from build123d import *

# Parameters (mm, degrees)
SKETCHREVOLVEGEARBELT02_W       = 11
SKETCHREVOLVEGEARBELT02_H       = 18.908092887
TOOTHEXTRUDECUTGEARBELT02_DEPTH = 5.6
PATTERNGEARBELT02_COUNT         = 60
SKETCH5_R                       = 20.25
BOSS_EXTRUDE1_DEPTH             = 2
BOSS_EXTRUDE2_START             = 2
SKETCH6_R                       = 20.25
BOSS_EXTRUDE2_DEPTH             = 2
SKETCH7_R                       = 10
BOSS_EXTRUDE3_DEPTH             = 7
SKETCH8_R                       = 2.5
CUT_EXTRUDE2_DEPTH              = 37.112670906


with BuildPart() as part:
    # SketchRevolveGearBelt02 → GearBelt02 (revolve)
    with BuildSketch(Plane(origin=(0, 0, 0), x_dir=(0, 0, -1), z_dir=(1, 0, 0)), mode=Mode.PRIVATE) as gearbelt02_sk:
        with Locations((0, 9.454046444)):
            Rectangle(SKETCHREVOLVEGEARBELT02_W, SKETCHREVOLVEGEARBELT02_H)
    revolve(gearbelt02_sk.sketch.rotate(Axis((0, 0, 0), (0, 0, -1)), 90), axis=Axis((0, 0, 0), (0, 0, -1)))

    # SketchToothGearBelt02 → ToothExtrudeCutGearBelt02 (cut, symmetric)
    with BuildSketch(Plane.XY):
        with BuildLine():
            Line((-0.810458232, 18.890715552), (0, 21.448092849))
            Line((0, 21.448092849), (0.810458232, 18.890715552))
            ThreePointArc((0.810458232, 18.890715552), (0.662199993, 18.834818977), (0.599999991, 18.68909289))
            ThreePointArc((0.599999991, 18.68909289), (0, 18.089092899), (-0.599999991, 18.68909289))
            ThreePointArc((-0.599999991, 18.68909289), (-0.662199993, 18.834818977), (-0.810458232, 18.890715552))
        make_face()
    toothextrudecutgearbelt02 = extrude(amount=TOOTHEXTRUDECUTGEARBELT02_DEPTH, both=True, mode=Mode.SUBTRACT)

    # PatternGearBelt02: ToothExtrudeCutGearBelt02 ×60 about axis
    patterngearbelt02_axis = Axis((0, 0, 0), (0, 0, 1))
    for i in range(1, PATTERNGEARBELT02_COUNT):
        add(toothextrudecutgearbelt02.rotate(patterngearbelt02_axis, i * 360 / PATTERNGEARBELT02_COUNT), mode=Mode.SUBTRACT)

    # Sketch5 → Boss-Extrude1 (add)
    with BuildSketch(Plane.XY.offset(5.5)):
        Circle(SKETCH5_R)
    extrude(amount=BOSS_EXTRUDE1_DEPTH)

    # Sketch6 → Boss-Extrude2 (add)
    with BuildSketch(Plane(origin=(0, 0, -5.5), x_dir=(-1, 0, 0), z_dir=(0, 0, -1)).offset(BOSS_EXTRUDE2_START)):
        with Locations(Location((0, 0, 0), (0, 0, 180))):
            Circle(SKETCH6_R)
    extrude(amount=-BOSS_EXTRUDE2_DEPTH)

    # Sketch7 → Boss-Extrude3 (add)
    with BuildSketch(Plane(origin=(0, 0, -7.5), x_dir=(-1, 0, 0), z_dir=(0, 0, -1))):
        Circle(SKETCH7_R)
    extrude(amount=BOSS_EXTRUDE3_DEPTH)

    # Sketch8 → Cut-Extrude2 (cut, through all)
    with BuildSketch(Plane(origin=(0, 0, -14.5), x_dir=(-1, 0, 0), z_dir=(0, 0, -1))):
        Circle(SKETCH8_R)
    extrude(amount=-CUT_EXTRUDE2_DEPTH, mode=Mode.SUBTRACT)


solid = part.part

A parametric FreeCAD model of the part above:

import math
import FreeCAD as App
import Part
import Sketcher
from FreeCAD import Vector


def add_polygon(sketch, points):
    """Adds a closed chain of lines whose ends are joined by coincident constraints."""
    first, n = sketch.GeometryCount, len(points)
    for a, b in zip(points, points[1:] + points[:1]):
        sketch.addGeometry(Part.LineSegment(App.Vector(*a, 0), App.Vector(*b, 0)), False)
    for i in range(n):
        sketch.addConstraint(Sketcher.Constraint("Coincident", first + i, 2, first + (i + 1) % n, 1))

doc = App.newDocument("Part")
body = doc.addObject("PartDesign::Body", "Body")

# Sketch on YZ plane
sketch1 = body.newObject("Sketcher::SketchObject", "Sketch")
sketch1.AttachmentSupport = (doc.getObject("YZ_Plane"), [""])
sketch1.MapMode = "FlatFace"
add_polygon(sketch1, [(19, 6), (0, 6), (0, -6), (19, -6)])  # lines 0-3
sketch1.addConstraint([
    Sketcher.Constraint("Horizontal", 0),
    Sketcher.Constraint("Vertical", 1),
    Sketcher.Constraint("Horizontal", 2),
    Sketcher.Constraint("Vertical", 3),
    Sketcher.Constraint("Symmetric", 0, 2, 1, 2, -1, 1),
    Sketcher.Constraint("DistanceY", 1, 2, 1, 1, 11.0),
    Sketcher.Constraint("DistanceX", 0, 2, 0, 1, 18.908093),
])
revolution = body.newObject("PartDesign::Revolution", "Revolution")
revolution.Profile = sketch1
revolution.ReferenceAxis = (sketch1, ["V_Axis"])
revolution.Angle = 360

# Sketch on XY plane
sketch2 = body.newObject("Sketcher::SketchObject", "Sketch001")
sketch2.AttachmentSupport = (doc.getObject("XY_Plane"), [""])
sketch2.MapMode = "FlatFace"
sketch2.addGeometry([
    Part.LineSegment(Vector(0, 21.45, 0), Vector(-0.81, 18.89, 0)),  # 0
    Part.ArcOfCircle(Part.Circle(Vector(-0.8, 18.69, 0), Vector(0, 0, 1), 0.2), math.radians(0), math.radians(92)),  # 1
    Part.ArcOfCircle(Part.Circle(Vector(0, 18.69, 0), Vector(0, 0, 1), 0.6), math.radians(180), math.radians(360)),  # 2
    Part.ArcOfCircle(Part.Circle(Vector(0.8, 18.69, 0), Vector(0, 0, 1), 0.2), math.radians(88), math.radians(180)),  # 3
    Part.LineSegment(Vector(0.81, 18.89, 0), Vector(0, 21.45, 0)),  # 4
], False)
sketch2.addConstraint([
    Sketcher.Constraint("Coincident", 0, 2, 1, 2),
    Sketcher.Constraint("Tangent", 1, 1, 2, 1),
    Sketcher.Constraint("Tangent", 2, 2, 3, 2),
    Sketcher.Constraint("Coincident", 3, 1, 4, 1),
    Sketcher.Constraint("Coincident", 4, 2, 0, 1),
    Sketcher.Constraint("Equal", 1, 3),
    Sketcher.Constraint("Symmetric", 1, 3, 3, 3, -2),
    Sketcher.Constraint("PointOnObject", 4, 2, -2),
    Sketcher.Constraint("Horizontal", 1, 3, 2, 3),
    Sketcher.Constraint("Horizontal", 0, 2, 3, 1),
    Sketcher.Constraint("Radius", 2, 0.6),
    Sketcher.Constraint("Radius", 1, 0.201808),
    Sketcher.Constraint("DistanceY", 2, 3, 4, 2, 2.759),
    Sketcher.Constraint("DistanceX", 0, 2, -1, 1, 0.810458),
    Sketcher.Constraint("DistanceY", -1, 1, 1, 3, 18.689093),
])
pocket1 = body.newObject("PartDesign::Pocket", "Pocket")
pocket1.Profile = sketch2
pocket1.Length = 11.2
pocket1.Midplane = True
doc.recompute()

polarpattern = body.newObject("PartDesign::PolarPattern", "PolarPattern")
polarpattern.Originals = [pocket1]
polarpattern.Axis = (doc.getObject("Z_Axis"), [""])
polarpattern.Angle = 360
polarpattern.Occurrences = 60
body.Tip = polarpattern

# Sketch on XY plane
sketch3 = body.newObject("Sketcher::SketchObject", "Sketch002")
sketch3.AttachmentSupport = (doc.getObject("XY_Plane"), [""])
sketch3.MapMode = "FlatFace"
sketch3.AttachmentOffset = App.Placement(Vector(0, 0, 5.5), App.Rotation())
sketch3.addGeometry(Part.Circle(Vector(0, 0, 0), Vector(0, 0, 1), 20), False)
sketch3.addConstraint([
    Sketcher.Constraint("Coincident", 0, 3, -1, 1),
    Sketcher.Constraint("Diameter", 0, 40.5),
])
pad1 = body.newObject("PartDesign::Pad", "Pad")
pad1.Profile = sketch3
pad1.Length = 2

# Sketch on XY plane
sketch4 = body.newObject("Sketcher::SketchObject", "Sketch003")
sketch4.AttachmentSupport = (doc.getObject("XY_Plane"), [""])
sketch4.MapMode = "FlatFace"
sketch4.AttachmentOffset = App.Placement(Vector(0, 0, -7.5), App.Rotation())
sketch4.addGeometry(Part.Circle(Vector(0, 0, 0), Vector(0, 0, 1), 20), False)
sketch4.addConstraint([
    Sketcher.Constraint("Coincident", 0, 3, -1, 1),
    Sketcher.Constraint("Diameter", 0, 40.5),
])
pad2 = body.newObject("PartDesign::Pad", "Pad001")
pad2.Profile = sketch4
pad2.Length = 2

# Sketch on XY plane
sketch5 = body.newObject("Sketcher::SketchObject", "Sketch004")
sketch5.AttachmentSupport = (doc.getObject("XY_Plane"), [""])
sketch5.MapMode = "FlatFace"
sketch5.AttachmentOffset = App.Placement(Vector(0, 0, -7.5), App.Rotation())
sketch5.addGeometry(Part.Circle(Vector(0, 0, 0), Vector(0, 0, 1), 10), False)
sketch5.addConstraint([
    Sketcher.Constraint("Coincident", 0, 3, -1, 1),
    Sketcher.Constraint("Diameter", 0, 20.0),
])
pad3 = body.newObject("PartDesign::Pad", "Pad002")
pad3.Profile = sketch5
pad3.Length = 7
pad3.Reversed = True

# Sketch on XY plane
sketch6 = body.newObject("Sketcher::SketchObject", "Sketch005")
sketch6.AttachmentSupport = (doc.getObject("XY_Plane"), [""])
sketch6.MapMode = "FlatFace"
sketch6.AttachmentOffset = App.Placement(Vector(0, 0, -14.5), App.Rotation())
sketch6.addGeometry(Part.Circle(Vector(0, 0, 0), Vector(0, 0, 1), 2.5), False)
sketch6.addConstraint([
    Sketcher.Constraint("Coincident", 0, 3, -1, 1),
    Sketcher.Constraint("Diameter", 0, 5.0),
])
pocket2 = body.newObject("PartDesign::Pocket", "Pocket001")
pocket2.Profile = sketch6
pocket2.Type = "ThroughAll"
pocket2.Reversed = True

doc.recompute()
